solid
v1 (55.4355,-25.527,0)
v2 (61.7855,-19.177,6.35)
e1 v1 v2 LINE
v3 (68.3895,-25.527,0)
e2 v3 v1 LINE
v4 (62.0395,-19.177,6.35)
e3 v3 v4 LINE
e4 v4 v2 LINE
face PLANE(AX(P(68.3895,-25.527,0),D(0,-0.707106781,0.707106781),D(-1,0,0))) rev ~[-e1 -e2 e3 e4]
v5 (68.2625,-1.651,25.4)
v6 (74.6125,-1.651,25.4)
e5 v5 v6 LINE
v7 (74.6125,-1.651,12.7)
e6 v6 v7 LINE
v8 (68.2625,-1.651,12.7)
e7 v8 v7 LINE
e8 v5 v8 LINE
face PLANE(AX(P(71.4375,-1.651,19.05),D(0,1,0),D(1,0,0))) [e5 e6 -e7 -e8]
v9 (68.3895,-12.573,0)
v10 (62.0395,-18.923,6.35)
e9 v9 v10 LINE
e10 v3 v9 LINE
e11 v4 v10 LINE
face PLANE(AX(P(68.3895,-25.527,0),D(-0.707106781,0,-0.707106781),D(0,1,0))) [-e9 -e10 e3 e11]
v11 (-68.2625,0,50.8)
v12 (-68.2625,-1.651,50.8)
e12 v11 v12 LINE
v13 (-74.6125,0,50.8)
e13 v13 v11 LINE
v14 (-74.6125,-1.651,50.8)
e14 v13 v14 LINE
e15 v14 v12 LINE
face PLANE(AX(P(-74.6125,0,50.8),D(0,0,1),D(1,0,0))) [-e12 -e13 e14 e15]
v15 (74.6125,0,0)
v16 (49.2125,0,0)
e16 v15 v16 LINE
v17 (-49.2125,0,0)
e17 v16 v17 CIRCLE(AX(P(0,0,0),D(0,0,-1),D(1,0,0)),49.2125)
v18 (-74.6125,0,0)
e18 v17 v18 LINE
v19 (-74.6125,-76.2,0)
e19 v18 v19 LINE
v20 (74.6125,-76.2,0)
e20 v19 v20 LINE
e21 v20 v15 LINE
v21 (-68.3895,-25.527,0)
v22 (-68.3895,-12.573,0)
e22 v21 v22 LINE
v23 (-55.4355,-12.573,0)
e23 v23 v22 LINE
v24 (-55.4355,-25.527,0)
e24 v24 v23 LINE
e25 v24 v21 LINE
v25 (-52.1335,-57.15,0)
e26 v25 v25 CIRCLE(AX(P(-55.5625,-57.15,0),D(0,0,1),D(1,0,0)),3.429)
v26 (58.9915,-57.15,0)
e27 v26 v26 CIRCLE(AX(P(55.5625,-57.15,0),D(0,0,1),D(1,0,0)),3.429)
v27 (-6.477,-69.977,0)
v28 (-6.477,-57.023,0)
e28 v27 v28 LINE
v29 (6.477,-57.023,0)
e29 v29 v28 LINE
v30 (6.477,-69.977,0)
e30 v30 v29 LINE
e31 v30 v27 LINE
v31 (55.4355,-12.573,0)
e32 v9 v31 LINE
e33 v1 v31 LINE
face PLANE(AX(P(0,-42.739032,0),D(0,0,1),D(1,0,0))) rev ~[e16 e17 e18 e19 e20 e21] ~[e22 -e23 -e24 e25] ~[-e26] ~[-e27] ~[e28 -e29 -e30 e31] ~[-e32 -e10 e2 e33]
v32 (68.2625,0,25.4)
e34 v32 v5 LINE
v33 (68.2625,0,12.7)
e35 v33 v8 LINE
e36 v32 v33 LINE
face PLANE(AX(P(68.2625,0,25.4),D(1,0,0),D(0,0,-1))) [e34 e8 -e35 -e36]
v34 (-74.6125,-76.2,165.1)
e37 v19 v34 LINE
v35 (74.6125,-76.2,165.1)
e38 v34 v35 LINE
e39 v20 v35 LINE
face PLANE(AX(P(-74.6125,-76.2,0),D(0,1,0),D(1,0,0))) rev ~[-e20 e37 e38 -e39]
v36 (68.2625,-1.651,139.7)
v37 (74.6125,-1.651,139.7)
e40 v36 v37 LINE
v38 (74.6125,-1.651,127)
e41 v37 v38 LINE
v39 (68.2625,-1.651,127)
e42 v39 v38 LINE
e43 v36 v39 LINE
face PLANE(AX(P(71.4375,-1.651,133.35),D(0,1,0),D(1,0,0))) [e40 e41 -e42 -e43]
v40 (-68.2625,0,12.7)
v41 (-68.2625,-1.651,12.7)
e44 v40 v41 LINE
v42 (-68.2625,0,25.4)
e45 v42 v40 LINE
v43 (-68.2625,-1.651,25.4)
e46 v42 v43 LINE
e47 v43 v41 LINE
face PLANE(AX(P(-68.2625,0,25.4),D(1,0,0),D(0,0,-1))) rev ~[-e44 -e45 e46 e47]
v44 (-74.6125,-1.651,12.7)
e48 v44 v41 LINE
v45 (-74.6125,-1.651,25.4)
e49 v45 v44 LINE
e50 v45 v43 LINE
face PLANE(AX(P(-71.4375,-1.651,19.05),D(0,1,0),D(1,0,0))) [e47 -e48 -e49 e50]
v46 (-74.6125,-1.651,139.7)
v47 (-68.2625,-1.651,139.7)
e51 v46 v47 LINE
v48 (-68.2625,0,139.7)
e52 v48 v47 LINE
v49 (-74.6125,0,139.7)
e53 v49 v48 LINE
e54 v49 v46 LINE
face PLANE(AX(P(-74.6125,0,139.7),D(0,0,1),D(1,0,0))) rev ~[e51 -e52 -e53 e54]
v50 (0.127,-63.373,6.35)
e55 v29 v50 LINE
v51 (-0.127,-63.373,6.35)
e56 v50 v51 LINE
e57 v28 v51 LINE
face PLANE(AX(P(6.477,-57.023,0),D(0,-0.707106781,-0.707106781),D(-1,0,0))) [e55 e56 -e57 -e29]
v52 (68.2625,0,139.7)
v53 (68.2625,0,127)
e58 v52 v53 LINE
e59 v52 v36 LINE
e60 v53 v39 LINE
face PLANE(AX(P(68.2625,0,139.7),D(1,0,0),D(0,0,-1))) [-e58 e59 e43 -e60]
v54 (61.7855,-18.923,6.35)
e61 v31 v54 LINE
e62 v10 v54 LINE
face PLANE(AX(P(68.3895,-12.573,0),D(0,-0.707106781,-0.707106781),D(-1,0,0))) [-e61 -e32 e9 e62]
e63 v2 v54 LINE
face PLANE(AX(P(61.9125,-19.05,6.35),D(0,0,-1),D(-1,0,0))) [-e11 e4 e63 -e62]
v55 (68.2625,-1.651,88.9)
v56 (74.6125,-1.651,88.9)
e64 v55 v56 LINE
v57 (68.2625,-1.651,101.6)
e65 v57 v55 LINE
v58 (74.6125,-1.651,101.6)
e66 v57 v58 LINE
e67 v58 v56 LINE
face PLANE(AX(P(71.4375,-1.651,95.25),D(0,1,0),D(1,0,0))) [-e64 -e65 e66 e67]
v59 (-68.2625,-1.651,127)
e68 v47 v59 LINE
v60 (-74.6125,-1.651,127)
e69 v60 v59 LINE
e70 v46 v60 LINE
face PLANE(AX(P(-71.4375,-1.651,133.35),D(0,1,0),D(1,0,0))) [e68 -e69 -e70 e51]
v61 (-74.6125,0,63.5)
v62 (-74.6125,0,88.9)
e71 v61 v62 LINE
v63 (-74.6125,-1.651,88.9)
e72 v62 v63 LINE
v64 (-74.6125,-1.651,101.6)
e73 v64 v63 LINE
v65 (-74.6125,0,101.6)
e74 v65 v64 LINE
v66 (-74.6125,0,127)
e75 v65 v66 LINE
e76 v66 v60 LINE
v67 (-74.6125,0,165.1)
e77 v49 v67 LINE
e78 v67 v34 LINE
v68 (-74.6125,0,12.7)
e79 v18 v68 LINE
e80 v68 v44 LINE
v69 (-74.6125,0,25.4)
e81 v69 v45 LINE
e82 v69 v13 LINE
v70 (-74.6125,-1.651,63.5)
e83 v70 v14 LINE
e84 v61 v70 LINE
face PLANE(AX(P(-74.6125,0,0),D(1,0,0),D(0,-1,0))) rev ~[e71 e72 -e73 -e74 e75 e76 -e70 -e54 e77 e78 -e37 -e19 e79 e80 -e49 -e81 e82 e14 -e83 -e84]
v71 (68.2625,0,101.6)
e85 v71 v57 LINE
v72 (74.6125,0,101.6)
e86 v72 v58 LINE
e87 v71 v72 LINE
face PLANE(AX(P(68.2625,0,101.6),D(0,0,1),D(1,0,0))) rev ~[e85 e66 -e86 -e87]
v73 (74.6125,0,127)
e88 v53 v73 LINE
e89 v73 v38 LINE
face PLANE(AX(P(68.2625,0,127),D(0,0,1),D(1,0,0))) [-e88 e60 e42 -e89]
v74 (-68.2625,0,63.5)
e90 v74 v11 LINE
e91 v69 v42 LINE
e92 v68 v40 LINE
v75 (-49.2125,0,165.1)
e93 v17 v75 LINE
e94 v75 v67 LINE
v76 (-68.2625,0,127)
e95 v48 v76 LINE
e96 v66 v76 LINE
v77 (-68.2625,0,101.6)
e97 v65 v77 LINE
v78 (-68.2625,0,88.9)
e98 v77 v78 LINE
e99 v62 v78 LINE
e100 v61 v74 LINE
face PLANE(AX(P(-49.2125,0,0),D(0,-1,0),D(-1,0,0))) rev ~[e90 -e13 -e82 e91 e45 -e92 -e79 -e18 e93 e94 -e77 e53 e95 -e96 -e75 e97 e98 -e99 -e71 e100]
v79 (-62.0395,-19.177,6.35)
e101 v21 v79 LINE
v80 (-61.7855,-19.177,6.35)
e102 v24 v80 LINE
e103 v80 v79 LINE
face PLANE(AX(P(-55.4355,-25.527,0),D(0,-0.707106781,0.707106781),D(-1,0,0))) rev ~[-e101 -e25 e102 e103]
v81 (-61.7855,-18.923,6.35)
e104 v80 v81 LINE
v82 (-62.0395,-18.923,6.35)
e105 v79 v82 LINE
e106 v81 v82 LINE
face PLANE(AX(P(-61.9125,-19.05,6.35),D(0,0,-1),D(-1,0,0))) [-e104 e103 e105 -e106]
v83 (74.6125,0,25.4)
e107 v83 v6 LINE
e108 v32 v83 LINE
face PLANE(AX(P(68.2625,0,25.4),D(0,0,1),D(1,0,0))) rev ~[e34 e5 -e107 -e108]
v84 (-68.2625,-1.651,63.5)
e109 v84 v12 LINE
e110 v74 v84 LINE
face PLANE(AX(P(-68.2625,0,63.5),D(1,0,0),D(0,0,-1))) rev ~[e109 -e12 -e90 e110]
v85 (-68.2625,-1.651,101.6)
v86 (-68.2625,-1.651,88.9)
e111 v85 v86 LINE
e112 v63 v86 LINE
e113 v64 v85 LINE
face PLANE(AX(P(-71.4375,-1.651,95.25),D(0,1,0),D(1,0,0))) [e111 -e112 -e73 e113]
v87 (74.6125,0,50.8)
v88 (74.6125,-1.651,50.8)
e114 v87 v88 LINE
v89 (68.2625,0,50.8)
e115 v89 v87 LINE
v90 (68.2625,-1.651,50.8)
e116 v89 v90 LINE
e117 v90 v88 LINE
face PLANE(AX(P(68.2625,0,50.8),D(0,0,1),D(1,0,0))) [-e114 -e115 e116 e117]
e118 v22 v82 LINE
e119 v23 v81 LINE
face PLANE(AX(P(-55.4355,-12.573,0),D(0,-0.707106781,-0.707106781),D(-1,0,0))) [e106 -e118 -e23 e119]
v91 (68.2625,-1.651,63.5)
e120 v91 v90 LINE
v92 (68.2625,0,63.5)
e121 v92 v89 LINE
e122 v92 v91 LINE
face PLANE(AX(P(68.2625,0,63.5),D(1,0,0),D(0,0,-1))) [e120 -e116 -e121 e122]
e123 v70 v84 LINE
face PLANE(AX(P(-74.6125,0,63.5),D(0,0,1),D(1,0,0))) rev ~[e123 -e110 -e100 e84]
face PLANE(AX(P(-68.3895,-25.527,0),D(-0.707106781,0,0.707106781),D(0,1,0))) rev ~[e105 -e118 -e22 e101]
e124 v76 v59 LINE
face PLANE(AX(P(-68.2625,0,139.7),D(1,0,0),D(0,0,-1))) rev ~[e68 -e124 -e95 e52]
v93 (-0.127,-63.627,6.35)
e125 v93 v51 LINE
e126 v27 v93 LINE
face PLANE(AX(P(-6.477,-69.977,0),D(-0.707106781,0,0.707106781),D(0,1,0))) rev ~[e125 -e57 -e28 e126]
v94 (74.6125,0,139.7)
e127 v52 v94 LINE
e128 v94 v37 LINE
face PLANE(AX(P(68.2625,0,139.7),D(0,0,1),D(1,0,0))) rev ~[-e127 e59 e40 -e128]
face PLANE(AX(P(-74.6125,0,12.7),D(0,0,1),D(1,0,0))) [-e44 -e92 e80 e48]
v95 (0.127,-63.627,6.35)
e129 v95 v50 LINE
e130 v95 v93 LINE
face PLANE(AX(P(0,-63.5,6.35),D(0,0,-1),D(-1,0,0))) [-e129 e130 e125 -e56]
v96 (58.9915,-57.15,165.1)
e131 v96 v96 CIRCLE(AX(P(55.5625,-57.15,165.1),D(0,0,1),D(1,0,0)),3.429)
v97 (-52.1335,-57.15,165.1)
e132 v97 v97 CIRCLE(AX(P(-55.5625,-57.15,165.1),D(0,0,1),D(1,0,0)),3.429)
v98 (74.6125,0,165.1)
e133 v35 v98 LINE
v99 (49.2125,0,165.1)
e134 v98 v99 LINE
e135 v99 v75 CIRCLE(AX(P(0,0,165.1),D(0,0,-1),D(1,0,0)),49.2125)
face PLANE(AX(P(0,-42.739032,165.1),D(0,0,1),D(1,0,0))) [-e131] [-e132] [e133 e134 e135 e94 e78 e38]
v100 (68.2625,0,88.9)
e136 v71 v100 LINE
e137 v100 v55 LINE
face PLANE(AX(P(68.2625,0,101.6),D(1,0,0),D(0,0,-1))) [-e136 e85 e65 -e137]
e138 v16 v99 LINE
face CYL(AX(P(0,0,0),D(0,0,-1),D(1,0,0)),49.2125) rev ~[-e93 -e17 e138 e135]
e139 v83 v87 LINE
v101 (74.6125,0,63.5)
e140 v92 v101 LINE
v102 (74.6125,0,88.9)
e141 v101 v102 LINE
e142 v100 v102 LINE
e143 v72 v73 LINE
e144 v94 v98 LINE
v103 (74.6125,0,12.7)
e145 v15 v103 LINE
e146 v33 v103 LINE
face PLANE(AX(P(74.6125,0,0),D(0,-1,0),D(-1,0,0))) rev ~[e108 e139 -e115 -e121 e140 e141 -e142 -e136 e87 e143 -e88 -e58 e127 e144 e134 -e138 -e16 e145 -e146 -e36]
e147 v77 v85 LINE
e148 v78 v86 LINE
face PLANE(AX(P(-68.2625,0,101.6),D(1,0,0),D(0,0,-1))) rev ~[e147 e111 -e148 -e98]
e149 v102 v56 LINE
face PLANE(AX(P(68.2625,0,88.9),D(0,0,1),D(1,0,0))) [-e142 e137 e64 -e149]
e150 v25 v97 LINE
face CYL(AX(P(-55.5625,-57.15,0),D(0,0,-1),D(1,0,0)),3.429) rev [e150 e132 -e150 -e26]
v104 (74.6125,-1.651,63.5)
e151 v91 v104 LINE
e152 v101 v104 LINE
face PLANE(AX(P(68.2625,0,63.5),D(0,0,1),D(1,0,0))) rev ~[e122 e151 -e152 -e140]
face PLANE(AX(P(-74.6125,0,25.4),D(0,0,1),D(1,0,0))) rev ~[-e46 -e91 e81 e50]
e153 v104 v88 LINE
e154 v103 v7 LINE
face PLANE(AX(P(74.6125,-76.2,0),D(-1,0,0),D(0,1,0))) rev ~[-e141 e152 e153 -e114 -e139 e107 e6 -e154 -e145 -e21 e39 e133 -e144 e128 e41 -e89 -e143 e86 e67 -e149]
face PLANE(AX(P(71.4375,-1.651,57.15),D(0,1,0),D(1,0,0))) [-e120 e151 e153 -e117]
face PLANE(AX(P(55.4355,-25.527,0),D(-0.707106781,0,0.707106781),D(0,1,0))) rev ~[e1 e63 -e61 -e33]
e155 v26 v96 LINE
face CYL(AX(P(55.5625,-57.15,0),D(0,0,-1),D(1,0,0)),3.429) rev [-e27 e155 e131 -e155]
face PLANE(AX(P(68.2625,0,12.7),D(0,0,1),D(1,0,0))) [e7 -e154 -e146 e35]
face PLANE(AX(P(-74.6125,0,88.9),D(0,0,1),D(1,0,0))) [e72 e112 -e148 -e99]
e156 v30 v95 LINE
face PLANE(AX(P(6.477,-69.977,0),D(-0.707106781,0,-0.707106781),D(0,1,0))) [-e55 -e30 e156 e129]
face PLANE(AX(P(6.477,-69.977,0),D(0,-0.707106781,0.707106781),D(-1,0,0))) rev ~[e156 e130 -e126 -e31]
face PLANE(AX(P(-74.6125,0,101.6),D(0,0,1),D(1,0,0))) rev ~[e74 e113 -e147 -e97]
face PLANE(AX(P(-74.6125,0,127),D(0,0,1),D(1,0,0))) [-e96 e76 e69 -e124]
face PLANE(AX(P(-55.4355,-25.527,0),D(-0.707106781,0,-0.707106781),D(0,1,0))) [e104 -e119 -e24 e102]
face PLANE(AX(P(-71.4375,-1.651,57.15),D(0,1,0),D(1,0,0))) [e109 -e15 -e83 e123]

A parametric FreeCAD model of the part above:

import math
import FreeCAD as App
import Part
import Sketcher
Q = App.Units.Quantity


def faces_at(feature, points):
    """Names of the faces that lie closest to the given points."""
    faces = feature.Shape.Faces
    near = lambda p: min(range(len(faces)), key=lambda i: faces[i].distToShape(Part.Vertex(*p))[0])
    return sorted({f"Face{near(p) + 1}" for p in points})


def add_polygon(sketch, points):
    """Adds a closed chain of lines whose ends are joined by coincident constraints."""
    first, n = sketch.GeometryCount, len(points)
    for a, b in zip(points, points[1:] + points[:1]):
        sketch.addGeometry(Part.LineSegment(App.Vector(*a, 0), App.Vector(*b, 0)), False)
    for i in range(n):
        sketch.addConstraint(Sketcher.Constraint("Coincident", first + i, 2, first + (i + 1) % n, 1))

doc = App.newDocument("Part")
body = doc.addObject("PartDesign::Body", "Body")

# Sketch on XY plane
sketch1 = body.newObject("Sketcher::SketchObject", "Sketch")
sketch1.AttachmentSupport = (doc.getObject("XY_Plane"), [""])
sketch1.MapMode = "FlatFace"
sketch1.addGeometry([
    Part.LineSegment(App.Vector(-49.2, 0, 0), App.Vector(-74.6, 0, 0)),  # 0
    Part.LineSegment(App.Vector(-74.6, 0, 0), App.Vector(-74.6, -76.2, 0)),  # 1
    Part.LineSegment(App.Vector(-74.6, -76.2, 0), App.Vector(74.6, -76.2, 0)),  # 2
    Part.LineSegment(App.Vector(74.6, -76.2, 0), App.Vector(74.6, 0, 0)),  # 3
    Part.LineSegment(App.Vector(74.6, 0, 0), App.Vector(49.2, 0, 0)),  # 4
    Part.ArcOfCircle(Part.Circle(App.Vector(0, 0, 0), App.Vector(0, 0, 1), 49.2), math.radians(180), math.radians(360)),  # 5
    Part.Circle(App.Vector(-55.6, -57.1, 0), App.Vector(0, 0, 1), 3.4),  # 6
    Part.Circle(App.Vector(55.6, -57.1, 0), App.Vector(0, 0, 1), 3.4),  # 7
], False)
sketch1.addConstraint([
    Sketcher.Constraint("Coincident", 0, 2, 1, 1),
    Sketcher.Constraint("Coincident", 1, 2, 2, 1),
    Sketcher.Constraint("Coincident", 2, 2, 3, 1),
    Sketcher.Constraint("Coincident", 3, 2, 4, 1),
    Sketcher.Constraint("Coincident", 4, 2, 5, 2),
    Sketcher.Constraint("Coincident", 5, 1, 0, 1),
    Sketcher.Constraint("Horizontal", 0),
    Sketcher.Constraint("Vertical", 1),
    Sketcher.Constraint("Horizontal", 2),
    Sketcher.Constraint("Vertical", 3),
    Sketcher.Constraint("Horizontal", 4),
    Sketcher.Constraint("Coincident", 5, 3, -1, 1),
    Sketcher.Constraint("Equal", 6, 7),
    Sketcher.Constraint("Symmetric", 0, 2, 3, 2, -1, 1),
    Sketcher.Constraint("Symmetric", 6, 3, 7, 3, -2),
    Sketcher.Constraint("PointOnObject", 0, 2, -1),
    Sketcher.Constraint("Diameter", 6, Q("0.27 in")),
    Sketcher.Constraint("DistanceX", 0, 2, 0, 1, Q("1 in")),
    Sketcher.Constraint("DistanceY", 1, 2, 1, 1, Q("3 in")),
    Sketcher.Constraint("Radius", 5, Q("1.9375 in")),
    Sketcher.Constraint("DistanceY", 6, 3, -1, 1, Q("2.25 in")),
    Sketcher.Constraint("DistanceX", 0, 2, 6, 3, Q("0.75 in")),
])
pad1 = body.newObject("PartDesign::Pad", "Pad")
pad1.Profile = sketch1
pad1.Length = Q("6.5 in")
body2 = doc.addObject("PartDesign::Body", "Body001")

# Sketch on XY plane
sketch2 = body2.newObject("Sketcher::SketchObject", "Sketch001")
sketch2.AttachmentSupport = (doc.getObject("XY_Plane001"), [""])
sketch2.MapMode = "FlatFace"
add_polygon(sketch2, [(68, -13), (68, -26), (55, -26), (55, -13)])  # lines 0-3
sketch2.addConstraint([
    Sketcher.Constraint("Vertical", 0),
    Sketcher.Constraint("Horizontal", 1),
    Sketcher.Constraint("Vertical", 2),
    Sketcher.Constraint("Horizontal", 3),
    Sketcher.Constraint("Equal", 3, 0),
    Sketcher.Constraint("DistanceX", 1, 2, 1, 1, Q("0.51 in")),
    Sketcher.Constraint("DistanceY", 0, 2, -1, 1, Q("1.005 in")),
    Sketcher.Constraint("DistanceX", -1, 1, 0, 2, Q("2.6925 in")),
])
pad2 = body2.newObject("PartDesign::Pad", "Pad001")
pad2.Profile = sketch2
pad2.Length = Q("0.25 in")
doc.recompute()

draft = body2.newObject("PartDesign::Draft", "Draft")
draft.Base = (pad2, faces_at(pad2, [
    (68.389, -19.05, 3.175),
    (61.913, -25.527, 3.175),
    (55.435, -19.05, 3.175),
    (61.913, -12.573, 3.175),
]))
draft.NeutralPlane = (doc.getObject("XY_Plane001"), [""])
draft.Angle = 45
draft.Reversed = False
doc.recompute()

boolean = body.newObject("PartDesign::Boolean", "Boolean")
boolean.Type = "Cut"
boolean.addObjects([body2])
body3 = doc.addObject("PartDesign::Body", "Body002")

# Sketch on XY plane
sketch3 = body3.newObject("Sketcher::SketchObject", "Sketch002")
sketch3.AttachmentSupport = (doc.getObject("XY_Plane002"), [""])
sketch3.MapMode = "FlatFace"
add_polygon(sketch3, [(6, -57), (6, -70), (-6, -70), (-6, -57)])  # lines 0-3
sketch3.addConstraint([
    Sketcher.Constraint("Vertical", 0),
    Sketcher.Constraint("Horizontal", 1),
    Sketcher.Constraint("Vertical", 2),
    Sketcher.Constraint("Horizontal", 3),
    Sketcher.Constraint("Equal", 3, 0),
    Sketcher.Constraint("DistanceX", 1, 2, 1, 1, Q("0.51 in")),
    Sketcher.Constraint("DistanceX", -1, 1, 0, 2, Q("0.255 in")),
    Sketcher.Constraint("DistanceY", 0, 2, -1, 1, Q("2.755 in")),
])
pad3 = body3.newObject("PartDesign::Pad", "Pad002")
pad3.Profile = sketch3
pad3.Length = Q("0.25 in")
doc.recompute()

draft2 = body3.newObject("PartDesign::Draft", "Draft001")
draft2.Base = (pad3, faces_at(pad3, [
    (6.477, -63.5, 3.175),
    (0, -69.977, 3.175),
    (-6.477, -63.5, 3.175),
    (0, -57.023, 3.175),
]))
draft2.NeutralPlane = (doc.getObject("XY_Plane002"), [""])
draft2.Angle = 45
draft2.Reversed = False
doc.recompute()

boolean2 = body.newObject("PartDesign::Boolean", "Boolean001")
boolean2.Type = "Cut"
boolean2.addObjects([body3])
body4 = doc.addObject("PartDesign::Body", "Body003")

# Sketch on XY plane
sketch4 = body4.newObject("Sketcher::SketchObject", "Sketch003")
sketch4.AttachmentSupport = (doc.getObject("XY_Plane003"), [""])
sketch4.MapMode = "FlatFace"
add_polygon(sketch4, [(-55, -13), (-55, -26), (-68, -26), (-68, -13)])  # lines 0-3
sketch4.addConstraint([
    Sketcher.Constraint("Vertical", 0),
    Sketcher.Constraint("Horizontal", 1),
    Sketcher.Constraint("Vertical", 2),
    Sketcher.Constraint("Horizontal", 3),
    Sketcher.Constraint("Equal", 3, 0),
    Sketcher.Constraint("DistanceX", 1, 2, 1, 1, Q("0.51 in")),
    Sketcher.Constraint("DistanceY", 0, 2, -1, 1, Q("1.005 in")),
    Sketcher.Constraint("DistanceX", 0, 2, -1, 1, Q("2.1825 in")),
])
pad4 = body4.newObject("PartDesign::Pad", "Pad003")
pad4.Profile = sketch4
pad4.Length = Q("0.25 in")
doc.recompute()

draft3 = body4.newObject("PartDesign::Draft", "Draft002")
draft3.Base = (pad4, faces_at(pad4, [
    (-55.435, -19.05, 3.175),
    (-61.913, -25.527, 3.175),
    (-68.389, -19.05, 3.175),
    (-61.913, -12.573, 3.175),
]))
draft3.NeutralPlane = (doc.getObject("XY_Plane003"), [""])
draft3.Angle = 45
draft3.Reversed = False
doc.recompute()

boolean3 = body.newObject("PartDesign::Boolean", "Boolean002")
boolean3.Type = "Cut"
boolean3.addObjects([body4])

# Sketch on XZ plane
sketch5 = body.newObject("Sketcher::SketchObject", "Sketch004")
sketch5.AttachmentSupport = (doc.getObject("XZ_Plane"), [""])
sketch5.MapMode = "FlatFace"
add_polygon(sketch5, [(68, 13), (68, 25), (75, 25), (75, 13)])  # lines 0-3
add_polygon(sketch5, [(68, 51), (68, 64), (75, 64), (75, 51)])  # lines 4-7
add_polygon(sketch5, [(68, 89), (68, 102), (75, 102), (75, 89)])  # lines 8-11
add_polygon(sketch5, [(68, 127), (68, 140), (75, 140), (75, 127)])  # lines 12-15
add_polygon(sketch5, [(-75, 51), (-75, 64), (-68, 64), (-68, 51)])  # lines 16-19
add_polygon(sketch5, [(-75, 89), (-75, 102), (-68, 102), (-68, 89)])  # lines 20-23
add_polygon(sketch5, [(-75, 127), (-75, 140), (-68, 140), (-68, 127)])  # lines 24-27
add_polygon(sketch5, [(-75, 13), (-75, 25), (-68, 25), (-68, 13)])  # lines 28-31
sketch5.addConstraint([
    Sketcher.Constraint("Vertical", 0),
    Sketcher.Constraint("Horizontal", 1),
    Sketcher.Constraint("Vertical", 2),
    Sketcher.Constraint("Horizontal", 3),
    Sketcher.Constraint("Vertical", 4),
    Sketcher.Constraint("Horizontal", 5),
    Sketcher.Constraint("Vertical", 6),
    Sketcher.Constraint("Horizontal", 7),
    Sketcher.Constraint("Vertical", 8),
    Sketcher.Constraint("Horizontal", 9),
    Sketcher.Constraint("Vertical", 10),
    Sketcher.Constraint("Horizontal", 11),
    Sketcher.Constraint("Vertical", 12),
    Sketcher.Constraint("Horizontal", 13),
    Sketcher.Constraint("Vertical", 14),
    Sketcher.Constraint("Horizontal", 15),
    Sketcher.Constraint("Vertical", 16),
    Sketcher.Constraint("Horizontal", 17),
    Sketcher.Constraint("Vertical", 18),
    Sketcher.Constraint("Horizontal", 19),
    Sketcher.Constraint("Vertical", 20),
    Sketcher.Constraint("Horizontal", 21),
    Sketcher.Constraint("Vertical", 22),
    Sketcher.Constraint("Horizontal", 23),
    Sketcher.Constraint("Vertical", 24),
    Sketcher.Constraint("Horizontal", 25),
    Sketcher.Constraint("Vertical", 26),
    Sketcher.Constraint("Horizontal", 27),
    Sketcher.Constraint("Vertical", 28),
    Sketcher.Constraint("Horizontal", 29),
    Sketcher.Constraint("Vertical", 30),
    Sketcher.Constraint("Horizontal", 31),
    Sketcher.Constraint("Symmetric", 5, 2, 16, 2, -2),
    Sketcher.Constraint("Symmetric", 7, 2, 18, 2, -2),
    Sketcher.Constraint("Symmetric", 9, 2, 20, 2, -2),
    Sketcher.Constraint("Symmetric", 11, 2, 22, 2, -2),
    Sketcher.Constraint("Symmetric", 13, 2, 24, 2, -2),
    Sketcher.Constraint("Symmetric", 15, 2, 26, 2, -2),
    Sketcher.Constraint("Symmetric", 1, 2, 28, 2, -2),
    Sketcher.Constraint("Symmetric", 3, 2, 30, 2, -2),
    Sketcher.Constraint("Vertical", 3, 2, 4, 2),
    Sketcher.Constraint("Vertical", 2, 2, 5, 2),
    Sketcher.Constraint("Vertical", 7, 2, 8, 2),
    Sketcher.Constraint("Vertical", 6, 2, 9, 2),
    Sketcher.Constraint("Vertical", 11, 2, 12, 2),
    Sketcher.Constraint("Vertical", 10, 2, 13, 2),
    Sketcher.Constraint("Equal", 2, 4),
    Sketcher.Constraint("Equal", 6, 8),
    Sketcher.Constraint("Equal", 10, 12),
    Sketcher.Constraint("DistanceY", 0, 1, 0, 2, Q("0.5 in")),
    Sketcher.Constraint("DistanceY", -1, 1, 0, 2, Q("1 in")),
    Sketcher.Constraint("DistanceY", -1, 1, 6, 2, Q("2 in")),
    Sketcher.Constraint("DistanceY", -1, 1, 8, 2, Q("4 in")),
    Sketcher.Constraint("DistanceY", -1, 1, 14, 2, Q("5 in")),
    Sketcher.Constraint("DistanceX", 1, 1, 1, 2, Q("0.25 in")),
    Sketcher.Constraint("DistanceX", -1, 1, 0, 2, Q("2.6875 in")),
])
pocket1 = body.newObject("PartDesign::Pocket", "Pocket")
pocket1.Profile = sketch5
pocket1.Length = Q("0.065 in")
pocket1.Reversed = True

doc.recompute()
